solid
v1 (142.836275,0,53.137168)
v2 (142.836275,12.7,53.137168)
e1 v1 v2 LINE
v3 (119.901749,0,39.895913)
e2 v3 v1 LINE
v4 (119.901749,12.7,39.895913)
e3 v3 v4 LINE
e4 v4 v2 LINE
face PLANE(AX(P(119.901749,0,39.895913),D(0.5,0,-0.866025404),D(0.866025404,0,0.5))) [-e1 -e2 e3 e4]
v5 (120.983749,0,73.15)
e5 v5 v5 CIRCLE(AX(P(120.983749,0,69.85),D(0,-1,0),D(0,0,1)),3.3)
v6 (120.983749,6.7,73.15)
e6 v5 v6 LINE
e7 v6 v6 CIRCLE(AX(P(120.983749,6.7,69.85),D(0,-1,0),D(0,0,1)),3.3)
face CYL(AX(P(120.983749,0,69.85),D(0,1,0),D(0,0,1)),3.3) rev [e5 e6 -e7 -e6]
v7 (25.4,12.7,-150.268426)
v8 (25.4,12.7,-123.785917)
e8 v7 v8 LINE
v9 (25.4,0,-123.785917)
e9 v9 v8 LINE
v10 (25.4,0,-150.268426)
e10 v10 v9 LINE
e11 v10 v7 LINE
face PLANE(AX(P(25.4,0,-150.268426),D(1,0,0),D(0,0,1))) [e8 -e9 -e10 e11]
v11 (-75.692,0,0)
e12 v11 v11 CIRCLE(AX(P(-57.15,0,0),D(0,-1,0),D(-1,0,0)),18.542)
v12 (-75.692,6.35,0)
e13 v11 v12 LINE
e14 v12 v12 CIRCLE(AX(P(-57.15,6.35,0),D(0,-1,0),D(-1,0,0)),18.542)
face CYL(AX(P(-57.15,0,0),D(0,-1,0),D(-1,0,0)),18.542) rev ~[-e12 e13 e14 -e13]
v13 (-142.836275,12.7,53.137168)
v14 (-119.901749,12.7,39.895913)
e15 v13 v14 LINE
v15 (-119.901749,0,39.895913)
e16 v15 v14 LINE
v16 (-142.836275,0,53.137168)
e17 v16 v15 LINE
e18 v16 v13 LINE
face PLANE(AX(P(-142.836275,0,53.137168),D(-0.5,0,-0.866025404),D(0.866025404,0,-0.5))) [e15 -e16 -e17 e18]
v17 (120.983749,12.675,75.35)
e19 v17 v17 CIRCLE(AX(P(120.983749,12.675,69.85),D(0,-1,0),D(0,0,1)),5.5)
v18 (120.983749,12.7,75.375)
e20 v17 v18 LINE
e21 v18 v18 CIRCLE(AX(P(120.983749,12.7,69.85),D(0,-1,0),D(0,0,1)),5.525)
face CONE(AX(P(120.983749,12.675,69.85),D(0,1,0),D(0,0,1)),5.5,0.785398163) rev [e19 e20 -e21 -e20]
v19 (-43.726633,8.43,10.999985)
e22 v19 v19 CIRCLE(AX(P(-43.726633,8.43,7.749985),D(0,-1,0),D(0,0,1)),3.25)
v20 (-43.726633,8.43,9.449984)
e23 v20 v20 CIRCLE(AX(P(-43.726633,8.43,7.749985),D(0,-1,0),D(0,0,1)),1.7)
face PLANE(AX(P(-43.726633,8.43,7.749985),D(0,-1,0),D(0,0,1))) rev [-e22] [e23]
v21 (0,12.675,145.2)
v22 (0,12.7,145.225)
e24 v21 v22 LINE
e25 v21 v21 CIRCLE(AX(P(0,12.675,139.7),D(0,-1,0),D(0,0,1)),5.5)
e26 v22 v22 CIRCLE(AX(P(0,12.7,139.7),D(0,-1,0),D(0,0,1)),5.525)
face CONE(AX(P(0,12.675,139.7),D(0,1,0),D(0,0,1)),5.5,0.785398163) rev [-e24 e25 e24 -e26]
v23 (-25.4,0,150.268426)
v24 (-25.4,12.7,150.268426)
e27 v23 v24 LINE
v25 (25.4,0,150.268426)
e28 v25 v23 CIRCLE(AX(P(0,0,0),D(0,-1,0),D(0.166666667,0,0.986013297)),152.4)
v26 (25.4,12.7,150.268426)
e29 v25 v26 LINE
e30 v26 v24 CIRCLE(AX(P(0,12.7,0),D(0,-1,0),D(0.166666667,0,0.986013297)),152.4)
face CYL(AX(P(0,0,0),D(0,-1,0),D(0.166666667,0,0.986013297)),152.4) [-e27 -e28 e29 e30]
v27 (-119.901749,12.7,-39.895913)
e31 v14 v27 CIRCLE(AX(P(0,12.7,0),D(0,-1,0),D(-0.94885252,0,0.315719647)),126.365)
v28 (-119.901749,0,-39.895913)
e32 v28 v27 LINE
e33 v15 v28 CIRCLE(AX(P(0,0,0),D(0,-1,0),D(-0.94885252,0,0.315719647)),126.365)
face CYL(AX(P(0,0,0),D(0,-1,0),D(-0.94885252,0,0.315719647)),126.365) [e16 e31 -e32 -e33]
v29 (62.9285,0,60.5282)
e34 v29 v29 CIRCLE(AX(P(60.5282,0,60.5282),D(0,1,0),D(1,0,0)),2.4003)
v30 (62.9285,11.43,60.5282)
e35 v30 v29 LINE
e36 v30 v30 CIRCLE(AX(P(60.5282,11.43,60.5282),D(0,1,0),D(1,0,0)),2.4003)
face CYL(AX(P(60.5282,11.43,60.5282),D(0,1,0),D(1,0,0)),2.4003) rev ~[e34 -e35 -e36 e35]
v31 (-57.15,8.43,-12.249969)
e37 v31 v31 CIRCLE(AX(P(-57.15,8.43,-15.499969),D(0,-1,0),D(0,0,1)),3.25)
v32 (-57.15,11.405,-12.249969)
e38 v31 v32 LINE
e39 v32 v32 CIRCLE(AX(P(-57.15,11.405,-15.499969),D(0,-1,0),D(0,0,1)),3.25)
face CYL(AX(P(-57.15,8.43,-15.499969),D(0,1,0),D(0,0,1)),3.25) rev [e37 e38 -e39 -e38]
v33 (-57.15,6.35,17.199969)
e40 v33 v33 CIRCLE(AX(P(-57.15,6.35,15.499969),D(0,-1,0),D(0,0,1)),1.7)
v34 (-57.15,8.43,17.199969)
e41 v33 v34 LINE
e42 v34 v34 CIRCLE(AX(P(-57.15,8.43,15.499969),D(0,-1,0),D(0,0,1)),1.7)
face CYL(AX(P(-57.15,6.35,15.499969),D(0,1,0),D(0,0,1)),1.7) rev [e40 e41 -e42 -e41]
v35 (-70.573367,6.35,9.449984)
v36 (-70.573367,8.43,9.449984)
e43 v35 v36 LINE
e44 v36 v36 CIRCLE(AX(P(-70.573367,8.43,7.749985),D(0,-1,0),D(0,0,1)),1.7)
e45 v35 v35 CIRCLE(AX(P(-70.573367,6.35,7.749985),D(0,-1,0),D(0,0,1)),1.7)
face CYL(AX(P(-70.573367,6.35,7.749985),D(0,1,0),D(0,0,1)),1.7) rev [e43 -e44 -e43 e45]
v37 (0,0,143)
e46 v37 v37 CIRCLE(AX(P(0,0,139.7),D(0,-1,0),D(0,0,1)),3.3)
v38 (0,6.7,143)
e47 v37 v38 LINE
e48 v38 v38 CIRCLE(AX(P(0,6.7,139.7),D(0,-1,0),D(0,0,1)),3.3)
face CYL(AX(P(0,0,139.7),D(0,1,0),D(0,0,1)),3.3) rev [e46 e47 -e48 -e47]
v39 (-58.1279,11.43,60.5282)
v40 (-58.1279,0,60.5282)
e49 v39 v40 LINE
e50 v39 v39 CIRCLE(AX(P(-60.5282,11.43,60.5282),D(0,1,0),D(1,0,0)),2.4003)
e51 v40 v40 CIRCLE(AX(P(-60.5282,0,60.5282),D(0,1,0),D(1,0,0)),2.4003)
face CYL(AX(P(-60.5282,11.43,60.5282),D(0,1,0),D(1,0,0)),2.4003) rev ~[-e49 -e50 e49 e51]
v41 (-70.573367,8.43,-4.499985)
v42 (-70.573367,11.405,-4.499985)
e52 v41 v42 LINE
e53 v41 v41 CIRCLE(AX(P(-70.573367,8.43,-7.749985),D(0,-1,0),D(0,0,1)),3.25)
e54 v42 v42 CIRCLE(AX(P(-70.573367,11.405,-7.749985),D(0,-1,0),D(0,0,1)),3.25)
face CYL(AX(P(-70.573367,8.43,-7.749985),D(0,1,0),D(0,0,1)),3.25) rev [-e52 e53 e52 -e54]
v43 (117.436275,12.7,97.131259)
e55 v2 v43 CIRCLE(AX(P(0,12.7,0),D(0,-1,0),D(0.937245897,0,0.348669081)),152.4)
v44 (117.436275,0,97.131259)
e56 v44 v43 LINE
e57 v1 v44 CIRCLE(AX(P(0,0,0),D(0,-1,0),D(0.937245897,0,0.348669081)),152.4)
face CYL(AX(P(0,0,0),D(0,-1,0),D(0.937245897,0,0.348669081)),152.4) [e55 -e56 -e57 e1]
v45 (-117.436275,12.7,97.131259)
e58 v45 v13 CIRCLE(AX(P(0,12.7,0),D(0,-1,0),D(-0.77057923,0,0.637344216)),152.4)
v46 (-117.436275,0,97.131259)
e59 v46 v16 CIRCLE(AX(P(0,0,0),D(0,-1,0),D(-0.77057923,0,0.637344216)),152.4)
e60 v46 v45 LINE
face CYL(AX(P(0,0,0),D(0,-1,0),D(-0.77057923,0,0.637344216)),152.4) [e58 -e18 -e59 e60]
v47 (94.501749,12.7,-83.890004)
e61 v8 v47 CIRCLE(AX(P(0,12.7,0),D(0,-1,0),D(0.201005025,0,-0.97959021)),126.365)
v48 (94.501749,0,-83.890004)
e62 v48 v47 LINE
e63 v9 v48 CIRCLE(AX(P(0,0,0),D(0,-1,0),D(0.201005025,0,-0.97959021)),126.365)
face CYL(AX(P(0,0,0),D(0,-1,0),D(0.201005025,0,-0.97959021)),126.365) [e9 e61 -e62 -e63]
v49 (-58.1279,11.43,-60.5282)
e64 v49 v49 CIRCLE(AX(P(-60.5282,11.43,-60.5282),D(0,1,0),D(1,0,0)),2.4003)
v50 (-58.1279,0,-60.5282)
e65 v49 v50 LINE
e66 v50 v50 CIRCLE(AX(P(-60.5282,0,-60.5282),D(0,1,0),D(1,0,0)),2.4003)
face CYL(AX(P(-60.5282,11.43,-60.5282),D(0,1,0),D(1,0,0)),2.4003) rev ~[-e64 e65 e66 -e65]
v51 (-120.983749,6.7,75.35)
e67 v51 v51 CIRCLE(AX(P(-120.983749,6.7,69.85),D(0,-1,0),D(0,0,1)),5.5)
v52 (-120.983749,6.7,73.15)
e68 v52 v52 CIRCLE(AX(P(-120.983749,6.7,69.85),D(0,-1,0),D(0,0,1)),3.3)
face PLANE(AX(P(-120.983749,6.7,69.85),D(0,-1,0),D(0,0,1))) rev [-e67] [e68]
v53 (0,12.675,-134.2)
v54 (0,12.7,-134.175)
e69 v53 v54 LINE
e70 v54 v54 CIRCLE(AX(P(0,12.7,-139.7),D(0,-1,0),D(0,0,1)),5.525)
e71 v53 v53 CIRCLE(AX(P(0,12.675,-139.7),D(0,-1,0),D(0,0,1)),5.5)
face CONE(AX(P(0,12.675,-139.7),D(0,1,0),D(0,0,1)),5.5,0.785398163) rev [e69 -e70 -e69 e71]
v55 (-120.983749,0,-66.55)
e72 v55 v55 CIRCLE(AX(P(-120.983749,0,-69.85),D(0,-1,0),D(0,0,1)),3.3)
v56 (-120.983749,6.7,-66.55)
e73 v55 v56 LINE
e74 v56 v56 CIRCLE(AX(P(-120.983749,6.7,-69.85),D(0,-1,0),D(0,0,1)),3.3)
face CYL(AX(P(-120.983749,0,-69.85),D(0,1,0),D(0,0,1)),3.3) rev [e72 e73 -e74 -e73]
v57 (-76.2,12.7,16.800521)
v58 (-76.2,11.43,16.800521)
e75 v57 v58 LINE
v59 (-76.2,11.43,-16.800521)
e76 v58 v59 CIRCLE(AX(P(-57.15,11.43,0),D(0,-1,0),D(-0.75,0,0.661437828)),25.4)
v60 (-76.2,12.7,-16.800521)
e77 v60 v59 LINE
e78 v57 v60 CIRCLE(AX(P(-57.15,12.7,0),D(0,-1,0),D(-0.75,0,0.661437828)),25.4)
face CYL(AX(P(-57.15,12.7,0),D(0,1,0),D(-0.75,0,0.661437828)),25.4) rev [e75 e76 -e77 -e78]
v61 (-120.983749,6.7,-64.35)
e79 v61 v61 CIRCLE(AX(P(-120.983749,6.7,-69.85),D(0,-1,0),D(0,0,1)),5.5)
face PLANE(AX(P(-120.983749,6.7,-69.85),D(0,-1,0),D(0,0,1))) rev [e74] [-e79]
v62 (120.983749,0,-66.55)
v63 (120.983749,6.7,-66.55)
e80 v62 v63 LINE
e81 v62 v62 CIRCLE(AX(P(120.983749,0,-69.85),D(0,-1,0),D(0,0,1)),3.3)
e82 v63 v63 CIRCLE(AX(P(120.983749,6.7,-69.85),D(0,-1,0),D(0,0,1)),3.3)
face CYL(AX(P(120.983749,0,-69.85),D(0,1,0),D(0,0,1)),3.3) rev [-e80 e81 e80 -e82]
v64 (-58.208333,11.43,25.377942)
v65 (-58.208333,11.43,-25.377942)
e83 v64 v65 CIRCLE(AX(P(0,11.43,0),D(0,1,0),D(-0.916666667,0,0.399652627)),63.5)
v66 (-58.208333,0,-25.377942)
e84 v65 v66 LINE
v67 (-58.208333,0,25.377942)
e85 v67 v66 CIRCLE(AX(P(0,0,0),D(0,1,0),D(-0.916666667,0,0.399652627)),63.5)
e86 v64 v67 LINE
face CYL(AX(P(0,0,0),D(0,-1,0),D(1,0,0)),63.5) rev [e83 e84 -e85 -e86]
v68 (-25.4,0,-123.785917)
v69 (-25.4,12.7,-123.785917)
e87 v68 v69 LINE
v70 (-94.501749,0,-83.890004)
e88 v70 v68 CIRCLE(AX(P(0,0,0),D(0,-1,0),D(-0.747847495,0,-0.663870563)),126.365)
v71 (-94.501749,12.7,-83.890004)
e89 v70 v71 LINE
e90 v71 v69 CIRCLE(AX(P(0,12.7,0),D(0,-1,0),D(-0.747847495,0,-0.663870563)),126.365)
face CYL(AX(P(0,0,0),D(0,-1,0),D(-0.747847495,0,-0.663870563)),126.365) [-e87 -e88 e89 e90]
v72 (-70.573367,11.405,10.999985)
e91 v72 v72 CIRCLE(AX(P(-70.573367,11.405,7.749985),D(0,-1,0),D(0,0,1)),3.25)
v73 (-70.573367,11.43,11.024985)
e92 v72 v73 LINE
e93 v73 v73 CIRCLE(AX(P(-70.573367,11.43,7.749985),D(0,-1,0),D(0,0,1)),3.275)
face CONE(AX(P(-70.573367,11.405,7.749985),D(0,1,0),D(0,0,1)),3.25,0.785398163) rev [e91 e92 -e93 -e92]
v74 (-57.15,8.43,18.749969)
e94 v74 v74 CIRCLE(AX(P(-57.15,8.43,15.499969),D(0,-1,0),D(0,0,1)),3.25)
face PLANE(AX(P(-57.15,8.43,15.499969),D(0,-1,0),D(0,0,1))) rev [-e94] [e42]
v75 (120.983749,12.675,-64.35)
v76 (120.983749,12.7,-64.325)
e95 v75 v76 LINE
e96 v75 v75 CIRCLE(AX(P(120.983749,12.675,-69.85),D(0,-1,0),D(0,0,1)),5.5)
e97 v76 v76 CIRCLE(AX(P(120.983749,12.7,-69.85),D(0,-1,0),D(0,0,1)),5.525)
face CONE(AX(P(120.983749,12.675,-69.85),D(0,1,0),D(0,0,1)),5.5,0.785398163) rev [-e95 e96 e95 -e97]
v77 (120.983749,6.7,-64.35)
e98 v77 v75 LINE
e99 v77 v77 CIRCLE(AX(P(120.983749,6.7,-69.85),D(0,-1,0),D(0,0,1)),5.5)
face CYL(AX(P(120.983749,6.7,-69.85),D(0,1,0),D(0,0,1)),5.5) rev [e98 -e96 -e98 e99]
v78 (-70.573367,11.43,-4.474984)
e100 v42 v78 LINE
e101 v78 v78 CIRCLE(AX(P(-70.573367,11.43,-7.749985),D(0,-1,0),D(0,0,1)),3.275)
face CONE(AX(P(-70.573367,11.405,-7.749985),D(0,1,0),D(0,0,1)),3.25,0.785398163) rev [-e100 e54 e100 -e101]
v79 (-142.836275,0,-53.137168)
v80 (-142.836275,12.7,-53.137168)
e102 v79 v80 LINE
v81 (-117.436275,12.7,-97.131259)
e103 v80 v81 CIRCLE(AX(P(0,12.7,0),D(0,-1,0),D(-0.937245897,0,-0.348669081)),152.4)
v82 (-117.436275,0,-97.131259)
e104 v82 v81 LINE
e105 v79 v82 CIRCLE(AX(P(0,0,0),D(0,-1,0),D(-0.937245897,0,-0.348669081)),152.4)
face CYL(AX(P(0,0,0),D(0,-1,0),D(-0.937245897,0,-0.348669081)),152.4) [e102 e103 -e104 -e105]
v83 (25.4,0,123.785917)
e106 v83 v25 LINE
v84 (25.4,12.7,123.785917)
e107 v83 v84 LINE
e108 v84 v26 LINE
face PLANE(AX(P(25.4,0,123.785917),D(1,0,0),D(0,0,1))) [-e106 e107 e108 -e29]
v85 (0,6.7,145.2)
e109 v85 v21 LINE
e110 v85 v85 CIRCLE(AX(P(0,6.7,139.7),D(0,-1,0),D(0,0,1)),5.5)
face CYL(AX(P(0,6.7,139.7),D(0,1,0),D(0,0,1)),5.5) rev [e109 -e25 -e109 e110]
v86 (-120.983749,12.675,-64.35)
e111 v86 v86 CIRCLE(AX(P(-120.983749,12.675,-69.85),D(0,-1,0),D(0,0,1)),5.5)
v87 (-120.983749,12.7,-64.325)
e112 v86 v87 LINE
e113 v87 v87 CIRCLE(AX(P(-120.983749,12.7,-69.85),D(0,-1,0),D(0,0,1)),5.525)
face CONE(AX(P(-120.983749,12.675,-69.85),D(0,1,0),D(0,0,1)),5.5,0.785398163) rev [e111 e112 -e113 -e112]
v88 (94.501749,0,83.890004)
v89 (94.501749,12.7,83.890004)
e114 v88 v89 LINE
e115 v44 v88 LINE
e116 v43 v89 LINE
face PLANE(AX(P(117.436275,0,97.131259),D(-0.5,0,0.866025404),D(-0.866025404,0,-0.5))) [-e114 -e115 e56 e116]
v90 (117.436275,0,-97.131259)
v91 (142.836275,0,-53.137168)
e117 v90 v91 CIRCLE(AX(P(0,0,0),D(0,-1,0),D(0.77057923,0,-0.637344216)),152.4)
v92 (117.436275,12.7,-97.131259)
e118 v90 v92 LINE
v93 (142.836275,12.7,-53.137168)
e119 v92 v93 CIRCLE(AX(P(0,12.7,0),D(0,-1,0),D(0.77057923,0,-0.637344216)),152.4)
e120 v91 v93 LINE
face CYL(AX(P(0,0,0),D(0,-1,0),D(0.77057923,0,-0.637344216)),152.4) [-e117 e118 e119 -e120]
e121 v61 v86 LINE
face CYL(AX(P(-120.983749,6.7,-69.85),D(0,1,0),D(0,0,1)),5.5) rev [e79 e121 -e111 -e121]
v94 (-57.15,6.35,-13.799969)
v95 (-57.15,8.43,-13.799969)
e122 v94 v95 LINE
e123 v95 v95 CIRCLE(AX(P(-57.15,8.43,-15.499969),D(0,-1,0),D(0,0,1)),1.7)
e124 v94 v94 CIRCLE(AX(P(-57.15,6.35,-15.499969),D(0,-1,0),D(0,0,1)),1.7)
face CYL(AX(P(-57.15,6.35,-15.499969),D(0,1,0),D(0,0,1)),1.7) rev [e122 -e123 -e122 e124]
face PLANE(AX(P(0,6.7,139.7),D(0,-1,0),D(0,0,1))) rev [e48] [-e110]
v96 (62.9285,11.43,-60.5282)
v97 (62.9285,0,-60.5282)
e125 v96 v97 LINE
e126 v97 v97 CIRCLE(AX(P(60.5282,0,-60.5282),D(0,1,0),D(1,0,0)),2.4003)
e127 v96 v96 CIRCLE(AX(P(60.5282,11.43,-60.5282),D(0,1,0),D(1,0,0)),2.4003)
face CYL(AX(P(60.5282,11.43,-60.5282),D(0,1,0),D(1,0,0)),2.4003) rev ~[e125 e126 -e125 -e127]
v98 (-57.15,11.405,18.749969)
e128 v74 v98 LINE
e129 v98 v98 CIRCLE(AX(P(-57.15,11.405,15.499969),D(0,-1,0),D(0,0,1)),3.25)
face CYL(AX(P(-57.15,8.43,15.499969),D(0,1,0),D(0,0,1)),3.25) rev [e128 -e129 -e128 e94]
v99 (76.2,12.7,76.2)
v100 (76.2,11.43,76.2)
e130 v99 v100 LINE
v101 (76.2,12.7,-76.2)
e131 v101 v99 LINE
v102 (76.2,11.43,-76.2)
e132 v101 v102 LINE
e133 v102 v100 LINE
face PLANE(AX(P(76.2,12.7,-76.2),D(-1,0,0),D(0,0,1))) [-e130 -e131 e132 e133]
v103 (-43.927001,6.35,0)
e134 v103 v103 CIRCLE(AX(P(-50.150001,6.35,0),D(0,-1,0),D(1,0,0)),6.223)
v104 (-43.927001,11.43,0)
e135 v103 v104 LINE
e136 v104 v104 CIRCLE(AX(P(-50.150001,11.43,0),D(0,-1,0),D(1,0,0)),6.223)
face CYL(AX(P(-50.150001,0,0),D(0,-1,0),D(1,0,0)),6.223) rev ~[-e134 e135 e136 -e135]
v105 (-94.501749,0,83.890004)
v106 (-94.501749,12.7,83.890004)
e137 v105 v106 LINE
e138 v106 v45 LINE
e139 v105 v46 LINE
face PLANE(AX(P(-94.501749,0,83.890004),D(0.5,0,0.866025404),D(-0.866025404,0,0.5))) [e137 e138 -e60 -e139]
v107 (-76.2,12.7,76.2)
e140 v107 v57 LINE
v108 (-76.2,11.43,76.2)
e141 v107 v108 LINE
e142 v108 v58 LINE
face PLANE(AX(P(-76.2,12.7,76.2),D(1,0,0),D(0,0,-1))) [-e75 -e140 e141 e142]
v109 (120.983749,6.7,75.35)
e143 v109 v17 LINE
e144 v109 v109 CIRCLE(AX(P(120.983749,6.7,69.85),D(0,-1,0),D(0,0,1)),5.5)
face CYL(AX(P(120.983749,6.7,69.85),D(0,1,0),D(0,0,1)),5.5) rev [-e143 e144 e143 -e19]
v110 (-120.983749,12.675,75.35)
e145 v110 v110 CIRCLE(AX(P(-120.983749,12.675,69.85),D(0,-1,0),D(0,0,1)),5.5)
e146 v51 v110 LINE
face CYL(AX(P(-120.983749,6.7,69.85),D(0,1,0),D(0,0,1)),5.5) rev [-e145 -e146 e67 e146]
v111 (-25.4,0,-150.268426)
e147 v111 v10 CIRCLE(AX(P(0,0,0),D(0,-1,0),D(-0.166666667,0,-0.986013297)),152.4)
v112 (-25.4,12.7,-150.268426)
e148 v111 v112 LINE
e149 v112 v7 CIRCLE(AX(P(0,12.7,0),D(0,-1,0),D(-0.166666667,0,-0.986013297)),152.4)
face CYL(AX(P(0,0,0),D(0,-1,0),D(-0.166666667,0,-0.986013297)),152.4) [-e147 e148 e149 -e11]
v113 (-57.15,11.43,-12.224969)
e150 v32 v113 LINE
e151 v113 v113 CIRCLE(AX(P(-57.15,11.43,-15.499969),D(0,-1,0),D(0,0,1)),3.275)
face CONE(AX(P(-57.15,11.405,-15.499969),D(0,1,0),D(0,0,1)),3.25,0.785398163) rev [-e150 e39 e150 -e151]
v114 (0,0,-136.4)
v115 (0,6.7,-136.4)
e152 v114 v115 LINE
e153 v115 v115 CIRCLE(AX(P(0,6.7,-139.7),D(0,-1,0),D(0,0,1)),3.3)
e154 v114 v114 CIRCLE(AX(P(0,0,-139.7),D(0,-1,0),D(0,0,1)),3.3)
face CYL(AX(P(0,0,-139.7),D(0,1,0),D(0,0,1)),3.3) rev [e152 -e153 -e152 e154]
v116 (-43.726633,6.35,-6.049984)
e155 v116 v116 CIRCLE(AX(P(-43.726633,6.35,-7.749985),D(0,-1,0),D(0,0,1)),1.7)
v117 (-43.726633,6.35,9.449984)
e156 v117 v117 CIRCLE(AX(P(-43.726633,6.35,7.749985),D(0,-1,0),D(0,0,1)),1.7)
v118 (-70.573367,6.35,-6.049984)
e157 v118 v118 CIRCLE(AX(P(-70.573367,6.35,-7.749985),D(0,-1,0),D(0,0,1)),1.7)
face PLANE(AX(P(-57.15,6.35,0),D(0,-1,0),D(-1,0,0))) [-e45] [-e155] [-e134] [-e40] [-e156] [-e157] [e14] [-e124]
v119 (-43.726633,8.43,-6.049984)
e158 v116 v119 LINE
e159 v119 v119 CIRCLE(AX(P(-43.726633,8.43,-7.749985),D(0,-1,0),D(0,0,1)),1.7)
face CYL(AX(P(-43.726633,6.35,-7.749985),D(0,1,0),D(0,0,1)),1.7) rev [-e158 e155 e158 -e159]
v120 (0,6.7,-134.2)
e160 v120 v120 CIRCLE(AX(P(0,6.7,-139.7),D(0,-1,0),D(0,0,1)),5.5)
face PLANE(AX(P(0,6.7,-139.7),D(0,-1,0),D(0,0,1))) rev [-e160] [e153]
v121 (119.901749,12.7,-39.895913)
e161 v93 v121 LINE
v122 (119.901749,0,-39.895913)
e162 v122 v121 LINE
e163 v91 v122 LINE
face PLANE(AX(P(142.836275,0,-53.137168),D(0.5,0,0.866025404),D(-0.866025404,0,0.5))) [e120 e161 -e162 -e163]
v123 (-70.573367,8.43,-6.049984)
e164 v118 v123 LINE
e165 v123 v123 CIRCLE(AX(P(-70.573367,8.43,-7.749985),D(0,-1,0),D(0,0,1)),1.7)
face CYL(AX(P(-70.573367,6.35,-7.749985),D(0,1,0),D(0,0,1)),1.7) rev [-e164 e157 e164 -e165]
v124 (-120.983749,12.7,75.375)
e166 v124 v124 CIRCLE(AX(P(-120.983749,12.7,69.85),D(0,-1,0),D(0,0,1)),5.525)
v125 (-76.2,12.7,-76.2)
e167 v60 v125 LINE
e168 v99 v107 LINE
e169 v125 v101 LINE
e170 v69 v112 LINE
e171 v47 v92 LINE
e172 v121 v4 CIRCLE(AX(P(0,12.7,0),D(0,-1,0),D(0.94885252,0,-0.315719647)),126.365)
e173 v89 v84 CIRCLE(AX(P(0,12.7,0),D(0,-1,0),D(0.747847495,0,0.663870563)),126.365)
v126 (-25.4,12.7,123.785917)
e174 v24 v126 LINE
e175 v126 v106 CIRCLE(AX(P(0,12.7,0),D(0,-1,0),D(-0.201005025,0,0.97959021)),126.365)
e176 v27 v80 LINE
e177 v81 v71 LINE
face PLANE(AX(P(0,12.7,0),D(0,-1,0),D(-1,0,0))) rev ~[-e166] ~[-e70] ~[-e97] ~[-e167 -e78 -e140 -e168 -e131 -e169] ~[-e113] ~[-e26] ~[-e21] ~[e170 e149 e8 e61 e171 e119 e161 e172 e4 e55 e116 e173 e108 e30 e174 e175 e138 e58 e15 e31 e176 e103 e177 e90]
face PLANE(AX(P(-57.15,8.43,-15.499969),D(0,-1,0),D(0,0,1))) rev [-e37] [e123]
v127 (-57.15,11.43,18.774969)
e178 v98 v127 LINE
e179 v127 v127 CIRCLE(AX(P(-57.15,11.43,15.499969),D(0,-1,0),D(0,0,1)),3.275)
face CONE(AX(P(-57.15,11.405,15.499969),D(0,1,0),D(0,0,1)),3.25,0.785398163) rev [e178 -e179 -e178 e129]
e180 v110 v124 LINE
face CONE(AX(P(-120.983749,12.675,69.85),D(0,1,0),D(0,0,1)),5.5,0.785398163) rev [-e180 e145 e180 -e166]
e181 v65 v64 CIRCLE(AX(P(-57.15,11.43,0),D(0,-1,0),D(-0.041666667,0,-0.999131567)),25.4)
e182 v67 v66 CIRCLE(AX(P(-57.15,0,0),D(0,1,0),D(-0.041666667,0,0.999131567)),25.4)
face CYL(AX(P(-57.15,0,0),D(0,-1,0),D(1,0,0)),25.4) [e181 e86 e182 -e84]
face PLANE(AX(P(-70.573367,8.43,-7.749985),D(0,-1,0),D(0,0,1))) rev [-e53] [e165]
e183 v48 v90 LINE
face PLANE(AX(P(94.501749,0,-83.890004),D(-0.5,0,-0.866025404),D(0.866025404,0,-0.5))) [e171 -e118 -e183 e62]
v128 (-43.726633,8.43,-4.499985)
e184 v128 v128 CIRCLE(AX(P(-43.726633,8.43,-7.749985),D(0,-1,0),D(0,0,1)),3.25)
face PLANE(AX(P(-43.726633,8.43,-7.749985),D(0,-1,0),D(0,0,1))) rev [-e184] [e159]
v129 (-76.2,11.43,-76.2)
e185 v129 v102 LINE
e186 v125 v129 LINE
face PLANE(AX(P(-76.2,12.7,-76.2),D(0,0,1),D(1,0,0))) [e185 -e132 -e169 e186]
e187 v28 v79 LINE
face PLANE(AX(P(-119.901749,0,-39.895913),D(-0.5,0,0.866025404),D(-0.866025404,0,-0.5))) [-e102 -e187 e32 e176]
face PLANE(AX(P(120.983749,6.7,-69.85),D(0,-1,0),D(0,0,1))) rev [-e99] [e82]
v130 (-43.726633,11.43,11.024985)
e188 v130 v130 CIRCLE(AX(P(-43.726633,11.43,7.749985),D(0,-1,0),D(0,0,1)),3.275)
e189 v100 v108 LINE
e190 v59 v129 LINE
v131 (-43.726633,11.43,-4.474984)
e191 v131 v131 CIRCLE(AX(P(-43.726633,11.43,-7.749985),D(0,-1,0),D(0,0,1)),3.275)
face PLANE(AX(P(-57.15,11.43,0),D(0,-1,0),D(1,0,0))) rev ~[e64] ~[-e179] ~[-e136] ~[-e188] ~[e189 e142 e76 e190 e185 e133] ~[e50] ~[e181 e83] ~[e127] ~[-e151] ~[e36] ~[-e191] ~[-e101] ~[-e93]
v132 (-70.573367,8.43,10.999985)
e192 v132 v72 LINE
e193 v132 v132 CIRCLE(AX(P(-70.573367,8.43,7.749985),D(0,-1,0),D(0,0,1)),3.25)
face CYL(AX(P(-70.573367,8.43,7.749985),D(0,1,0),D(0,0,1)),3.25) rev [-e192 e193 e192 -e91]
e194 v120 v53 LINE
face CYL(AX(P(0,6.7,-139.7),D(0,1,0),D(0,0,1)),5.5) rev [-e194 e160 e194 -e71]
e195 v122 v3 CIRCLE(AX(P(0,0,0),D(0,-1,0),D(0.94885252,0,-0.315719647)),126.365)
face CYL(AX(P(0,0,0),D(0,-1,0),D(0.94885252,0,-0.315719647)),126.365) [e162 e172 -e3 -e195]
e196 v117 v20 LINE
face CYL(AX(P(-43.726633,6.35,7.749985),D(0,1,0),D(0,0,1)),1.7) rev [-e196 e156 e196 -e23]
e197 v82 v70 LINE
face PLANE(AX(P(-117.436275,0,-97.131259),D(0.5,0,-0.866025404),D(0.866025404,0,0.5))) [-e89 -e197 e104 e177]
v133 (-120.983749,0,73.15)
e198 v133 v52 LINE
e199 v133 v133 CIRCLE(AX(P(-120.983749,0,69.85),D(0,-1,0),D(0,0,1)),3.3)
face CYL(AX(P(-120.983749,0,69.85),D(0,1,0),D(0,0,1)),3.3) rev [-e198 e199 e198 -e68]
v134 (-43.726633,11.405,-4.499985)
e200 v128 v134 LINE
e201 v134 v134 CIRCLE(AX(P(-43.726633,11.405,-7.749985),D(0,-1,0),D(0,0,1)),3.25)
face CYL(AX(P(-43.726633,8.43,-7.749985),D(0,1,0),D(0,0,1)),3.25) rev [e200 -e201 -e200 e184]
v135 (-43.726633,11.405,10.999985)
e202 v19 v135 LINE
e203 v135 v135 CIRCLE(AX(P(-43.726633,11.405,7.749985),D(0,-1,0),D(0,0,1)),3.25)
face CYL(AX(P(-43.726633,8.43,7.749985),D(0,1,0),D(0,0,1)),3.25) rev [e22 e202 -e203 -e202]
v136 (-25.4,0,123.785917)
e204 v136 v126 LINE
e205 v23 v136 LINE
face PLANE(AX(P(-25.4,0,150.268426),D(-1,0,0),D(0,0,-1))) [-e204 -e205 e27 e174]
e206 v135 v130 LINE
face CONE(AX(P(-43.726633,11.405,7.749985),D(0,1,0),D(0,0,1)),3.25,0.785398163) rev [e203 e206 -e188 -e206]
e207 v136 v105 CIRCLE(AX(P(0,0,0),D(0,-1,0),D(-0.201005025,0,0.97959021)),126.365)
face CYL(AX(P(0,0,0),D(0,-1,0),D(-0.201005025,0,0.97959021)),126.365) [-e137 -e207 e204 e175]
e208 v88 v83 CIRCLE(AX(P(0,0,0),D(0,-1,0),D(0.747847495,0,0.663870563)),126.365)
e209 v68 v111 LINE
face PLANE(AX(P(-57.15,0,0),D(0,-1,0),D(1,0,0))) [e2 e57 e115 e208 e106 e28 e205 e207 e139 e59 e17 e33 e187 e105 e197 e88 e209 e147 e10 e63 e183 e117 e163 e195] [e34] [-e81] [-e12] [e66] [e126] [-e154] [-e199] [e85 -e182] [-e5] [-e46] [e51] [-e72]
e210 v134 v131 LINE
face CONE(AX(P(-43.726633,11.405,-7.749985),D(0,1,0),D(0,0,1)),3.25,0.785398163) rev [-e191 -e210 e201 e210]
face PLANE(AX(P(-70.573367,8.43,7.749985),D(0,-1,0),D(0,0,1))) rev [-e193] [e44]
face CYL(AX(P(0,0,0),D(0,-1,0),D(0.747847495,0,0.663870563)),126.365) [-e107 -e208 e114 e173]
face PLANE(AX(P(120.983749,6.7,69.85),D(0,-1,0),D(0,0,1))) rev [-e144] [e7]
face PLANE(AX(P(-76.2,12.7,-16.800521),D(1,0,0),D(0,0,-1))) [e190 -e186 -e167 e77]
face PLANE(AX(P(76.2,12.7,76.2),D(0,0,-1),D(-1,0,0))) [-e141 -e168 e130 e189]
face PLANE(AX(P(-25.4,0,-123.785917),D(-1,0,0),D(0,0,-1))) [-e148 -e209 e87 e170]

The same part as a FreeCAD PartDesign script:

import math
import FreeCAD as App
import Part
import Sketcher

V = App.Vector
Q = App.Units.Quantity


def add_polygon(sketch, points):
    """Adds a closed chain of lines whose ends are joined by coincident constraints."""
    first, n = sketch.GeometryCount, len(points)
    for a, b in zip(points, points[1:] + points[:1]):
        sketch.addGeometry(Part.LineSegment(App.Vector(*a, 0), App.Vector(*b, 0)), False)
    for i in range(n):
        sketch.addConstraint(Sketcher.Constraint("Coincident", first + i, 2, first + (i + 1) % n, 1))

doc = App.newDocument("Part")
body = doc.addObject("PartDesign::Body", "Body")

# Sketch on XZ plane
sketch1 = body.newObject("Sketcher::SketchObject", "Sketch")
sketch1.AttachmentSupport = (doc.getObject("XZ_Plane"), [""])
sketch1.MapMode = "FlatFace"
sketch1.addGeometry([
    Part.LineSegment(V(-25.4, -150.268426, 0), V(-25.4, -123.785917, 0)),  # 0
    Part.ArcOfCircle(Part.Circle(V(0, 0, 0), V(0, 0, 1), 126.365), math.radians(-138.404264), math.radians(-101.595736)),  # 1
    Part.LineSegment(V(-94.501749, -83.890004, 0), V(-117.436275, -97.131259, 0)),  # 2
    Part.ArcOfCircle(Part.Circle(V(0, 0, 0), V(0, 0, 1), 152.4), math.radians(-159.594068), math.radians(-140.405932)),  # 3
    Part.LineSegment(V(-142.836275, -53.137168, 0), V(-119.901749, -39.895913, 0)),  # 4
    Part.ArcOfCircle(Part.Circle(V(0, 0, 0), V(0, 0, 1), 126.365), math.radians(161.595736), math.radians(198.404264)),  # 5
    Part.LineSegment(V(-119.901749, 39.895913, 0), V(-142.836275, 53.137168, 0)),  # 6
    Part.ArcOfCircle(Part.Circle(V(0, 0, 0), V(0, 0, 1), 152.4), math.radians(140.405932), math.radians(159.594068)),  # 7
    Part.LineSegment(V(-117.436275, 97.131259, 0), V(-94.501749, 83.890004, 0)),  # 8
    Part.ArcOfCircle(Part.Circle(V(0, 0, 0), V(0, 0, 1), 126.365), math.radians(101.595736), math.radians(138.404264)),  # 9
    Part.LineSegment(V(-25.4, 123.785917, 0), V(-25.4, 150.268426, 0)),  # 10
    Part.ArcOfCircle(Part.Circle(V(0, 0, 0), V(0, 0, 1), 152.4), math.radians(80.405932), math.radians(99.594068)),  # 11
    Part.LineSegment(V(25.4, 150.268426, 0), V(25.4, 123.785917, 0)),  # 12
    Part.ArcOfCircle(Part.Circle(V(0, 0, 0), V(0, 0, 1), 126.365), math.radians(41.595736), math.radians(78.404264)),  # 13
    Part.LineSegment(V(94.501749, 83.890004, 0), V(117.436275, 97.131259, 0)),  # 14
    Part.ArcOfCircle(Part.Circle(V(0, 0, 0), V(0, 0, 1), 152.4), math.radians(20.405932), math.radians(39.594068)),  # 15
    Part.LineSegment(V(142.836275, 53.137168, 0), V(119.901749, 39.895913, 0)),  # 16
    Part.ArcOfCircle(Part.Circle(V(0, 0, 0), V(0, 0, 1), 126.365), math.radians(-18.404264), math.radians(18.404264)),  # 17
    Part.LineSegment(V(119.901749, -39.895913, 0), V(142.836275, -53.137168, 0)),  # 18
    Part.ArcOfCircle(Part.Circle(V(0, 0, 0), V(0, 0, 1), 152.4), math.radians(-39.594068), math.radians(-20.405932)),  # 19
    Part.LineSegment(V(117.436275, -97.131259, 0), V(94.501749, -83.890004, 0)),  # 20
    Part.ArcOfCircle(Part.Circle(V(0, 0, 0), V(0, 0, 1), 126.365), math.radians(-78.404264), math.radians(-41.595736)),  # 21
    Part.LineSegment(V(25.4, -123.785917, 0), V(25.4, -150.268426, 0)),  # 22
    Part.ArcOfCircle(Part.Circle(V(0, 0, 0), V(0, 0, 1), 152.4), math.radians(-99.594068), math.radians(-80.405932)),  # 23
], False)
sketch1.addConstraint([
    Sketcher.Constraint("Coincident", 0, 2, 1, 2),
    Sketcher.Constraint("Coincident", 1, 1, 2, 1),
    Sketcher.Constraint("Coincident", 2, 2, 3, 2),
    Sketcher.Constraint("Coincident", 3, 1, 4, 1),
    Sketcher.Constraint("Coincident", 4, 2, 5, 2),
    Sketcher.Constraint("Coincident", 5, 1, 6, 1),
    Sketcher.Constraint("Coincident", 6, 2, 7, 2),
    Sketcher.Constraint("Coincident", 7, 1, 8, 1),
    Sketcher.Constraint("Coincident", 8, 2, 9, 2),
    Sketcher.Constraint("Coincident", 9, 1, 10, 1),
    Sketcher.Constraint("Coincident", 10, 2, 11, 2),
    Sketcher.Constraint("Coincident", 11, 1, 12, 1),
    Sketcher.Constraint("Coincident", 12, 2, 13, 2),
    Sketcher.Constraint("Coincident", 13, 1, 14, 1),
    Sketcher.Constraint("Coincident", 14, 2, 15, 2),
    Sketcher.Constraint("Coincident", 15, 1, 16, 1),
    Sketcher.Constraint("Coincident", 16, 2, 17, 2),
    Sketcher.Constraint("Coincident", 17, 1, 18, 1),
    Sketcher.Constraint("Coincident", 18, 2, 19, 2),
    Sketcher.Constraint("Coincident", 19, 1, 20, 1),
    Sketcher.Constraint("Coincident", 20, 2, 21, 2),
    Sketcher.Constraint("Coincident", 21, 1, 22, 1),
    Sketcher.Constraint("Coincident", 22, 2, 23, 2),
    Sketcher.Constraint("Coincident", 23, 1, 0, 1),
    Sketcher.Constraint("Vertical", 0),
    Sketcher.Constraint("Vertical", 10),
    Sketcher.Constraint("Vertical", 12),
    Sketcher.Constraint("Vertical", 22),
    Sketcher.Constraint("Coincident", 1, 3, -1, 1),
    Sketcher.Constraint("Coincident", 3, 3, -1, 1),
    Sketcher.Constraint("Coincident", 5, 3, -1, 1),
    Sketcher.Constraint("Coincident", 7, 3, -1, 1),
    Sketcher.Constraint("Coincident", 9, 3, -1, 1),
    Sketcher.Constraint("Coincident", 11, 3, -1, 1),
    Sketcher.Constraint("Coincident", 13, 3, -1, 1),
    Sketcher.Constraint("Coincident", 15, 3, -1, 1),
    Sketcher.Constraint("Coincident", 17, 3, -1, 1),
    Sketcher.Constraint("Coincident", 19, 3, -1, 1),
    Sketcher.Constraint("Coincident", 21, 3, -1, 1),
    Sketcher.Constraint("Coincident", 23, 3, -1, 1),
    Sketcher.Constraint("Equal", 1, 5),
    Sketcher.Constraint("Equal", 3, 7),
    Sketcher.Constraint("Equal", 5, 9),
    Sketcher.Constraint("Equal", 7, 11),
    Sketcher.Constraint("Equal", 9, 13),
    Sketcher.Constraint("Equal", 11, 15),
    Sketcher.Constraint("Equal", 13, 17),
    Sketcher.Constraint("Equal", 15, 19),
    Sketcher.Constraint("Equal", 17, 21),
    Sketcher.Constraint("Equal", 19, 23),
    Sketcher.Constraint("Parallel", 2, 4),
    Sketcher.Constraint("Parallel", 6, 8),
    Sketcher.Constraint("Parallel", 4, 14),
    Sketcher.Constraint("Parallel", 14, 16),
    Sketcher.Constraint("Parallel", 8, 18),
    Sketcher.Constraint("Parallel", 18, 20),
    Sketcher.Constraint("Horizontal", 10, 2, 11, 1),
    Sketcher.Constraint("Horizontal", 8, 2, 13, 1),
    Sketcher.Constraint("Horizontal", 7, 1, 14, 2),
    Sketcher.Constraint("Horizontal", 6, 2, 15, 1),
    Sketcher.Constraint("Horizontal", 4, 2, 17, 1),
    Sketcher.Constraint("Horizontal", 2, 2, 19, 1),
    Sketcher.Constraint("Horizontal", 0, 2, 21, 1),
    Sketcher.Constraint("Vertical", 4, 2, 5, 1),
    Sketcher.Constraint("Vertical", 2, 2, 7, 1),
    Sketcher.Constraint("Vertical", 0, 2, 9, 1),
    Sketcher.Constraint("Equal", 2, 4),
    Sketcher.Constraint("Radius", 3, Q("6 in")),
    Sketcher.Constraint("DistanceX", 0, 2, -1, 1, Q("1 in")),
    Sketcher.Constraint("Angle", 2, Q("-150 deg")),
    Sketcher.Constraint("Radius", 1, Q("4.975 in")),
    Sketcher.Constraint("DistanceX", 3, 1, 2, 2, Q("1 in")),
])
pad1 = body.newObject("PartDesign::Pad", "Pad")
pad1.Profile = sketch1
pad1.Length = Q("0.5 in")
pad1.Reversed = True

# Sketch on XZ plane
sketch2 = body.newObject("Sketcher::SketchObject", "Sketch001")
sketch2.AttachmentSupport = (doc.getObject("XZ_Plane"), [""])
sketch2.MapMode = "FlatFace"
sketch2.addGeometry(Part.Circle(V(0, 0, 0), V(0, 0, 1), 63.5), False)
sketch2.addConstraint([
    Sketcher.Constraint("Coincident", 0, 3, -1, 1),
    Sketcher.Constraint("Diameter", 0, Q("5 in")),
])
pocket1 = body.newObject("PartDesign::Pocket", "Pocket")
pocket1.Profile = sketch2
pocket1.Length = Q("0.5 in")

# Sketch on XZ plane
sketch3 = body.newObject("Sketcher::SketchObject", "Sketch002")
sketch3.AttachmentSupport = (doc.getObject("XZ_Plane"), [""])
sketch3.MapMode = "FlatFace"
sketch3.AttachmentOffset = App.Placement(V(0, 0, -0.5 * 25.4), App.Rotation())
sketch3.addGeometry([
    Part.LineSegment(V(-76.2, -76.2, 0), V(-76.2, -16.800521, 0)),  # 0
    Part.ArcOfCircle(Part.Circle(V(-57.15, 0, 0), V(0, 0, 1), 25.4), math.radians(138.590378), math.radians(221.409622)),  # 1
    Part.LineSegment(V(-76.2, 16.800521, 0), V(-76.2, 76.2, 0)),  # 2
    Part.LineSegment(V(-76.2, 76.2, 0), V(76.2, 76.2, 0)),  # 3
    Part.LineSegment(V(76.2, 76.2, 0), V(76.2, -76.2, 0)),  # 4
    Part.LineSegment(V(76.2, -76.2, 0), V(-76.2, -76.2, 0)),  # 5
], False)
sketch3.addConstraint([
    Sketcher.Constraint("Coincident", 0, 2, 1, 2),
    Sketcher.Constraint("Coincident", 1, 1, 2, 1),
    Sketcher.Constraint("Coincident", 2, 2, 3, 1),
    Sketcher.Constraint("Coincident", 3, 2, 4, 1),
    Sketcher.Constraint("Coincident", 4, 2, 5, 1),
    Sketcher.Constraint("Coincident", 5, 2, 0, 1),
    Sketcher.Constraint("Vertical", 0),
    Sketcher.Constraint("Vertical", 2),
    Sketcher.Constraint("Horizontal", 3),
    Sketcher.Constraint("Vertical", 4),
    Sketcher.Constraint("Horizontal", 5),
    Sketcher.Constraint("Symmetric", 2, 2, 4, 2, -1, 1),
    Sketcher.Constraint("Symmetric", 0, 2, 1, 1, -1),
    Sketcher.Constraint("Equal", 5, 4),
    Sketcher.Constraint("Radius", 1, Q("1 in")),
    Sketcher.Constraint("DistanceX", 3, 1, 3, 2, Q("6 in")),
    Sketcher.Constraint("DistanceX", 1, 3, -1, 1, Q("2.25 in")),
])
pocket2 = body.newObject("PartDesign::Pocket", "Pocket001")
pocket2.Profile = sketch3
pocket2.Length = Q("0.05 in")
pocket2.Reversed = True

# Sketch on XZ plane
sketch4 = body.newObject("Sketcher::SketchObject", "Sketch003")
sketch4.AttachmentSupport = (doc.getObject("XZ_Plane"), [""])
sketch4.MapMode = "FlatFace"
sketch4.AttachmentOffset = App.Placement(V(0, 0, -0.45 * 25.4), App.Rotation())
sketch4.addGeometry([
    Part.Circle(V(-60.5282, -60.5282, 0), V(0, 0, 1), 2.4003),
    Part.Circle(V(-60.5282, 60.5282, 0), V(0, 0, 1), 2.4003),
    Part.Circle(V(60.5282, 60.5282, 0), V(0, 0, 1), 2.4003),
    Part.Circle(V(60.5282, -60.5282, 0), V(0, 0, 1), 2.4003),
], False)
sketch4.addConstraint([
    Sketcher.Constraint("Equal", 0, 1),
    Sketcher.Constraint("Equal", 1, 2),
    Sketcher.Constraint("Equal", 2, 3),
    Sketcher.Constraint("Symmetric", 0, 3, 2, 3, -1, 1),
    Sketcher.Constraint("Symmetric", 1, 3, 3, 3, -1, 1),
    Sketcher.Constraint("Symmetric", 1, 3, 2, 3, -2),
    Sketcher.Constraint("Diameter", 0, Q("0.189 in")),
    Sketcher.Constraint("DistanceX", 0, 3, -1, 1, Q("2.383 in")),
    Sketcher.Constraint("DistanceY", 0, 3, -1, 1, Q("2.383 in")),
])
pocket3 = body.newObject("PartDesign::Pocket", "Pocket002")
pocket3.Profile = sketch4
pocket3.Type = "ThroughAll"
pocket3.Midplane = True

# Sketch on YZ plane
sketch5 = body.newObject("Sketcher::SketchObject", "Sketch004")
sketch5.AttachmentSupport = (doc.getObject("YZ_Plane"), [""])
sketch5.MapMode = "FlatFace"
add_polygon(sketch5, [(0, 0), (12.7, 0), (12.7, 5.525), (12.675, 5.5), (6.7, 5.5), (6.7, 3.3), (0, 3.3)])  # lines 0-6
sketch5.addConstraint([
    Sketcher.Constraint("Horizontal", 0),
    Sketcher.Constraint("Vertical", 1),
    Sketcher.Constraint("Horizontal", 3),
    Sketcher.Constraint("Vertical", 4),
    Sketcher.Constraint("Horizontal", 5),
    Sketcher.Constraint("Vertical", 6),
    Sketcher.Constraint("Coincident", 6, 2, -1, 1),
    Sketcher.Constraint("DistanceX", 0, 1, 0, 2, Q("0.5 in")),
    Sketcher.Constraint("Angle", 2, Q("-135 deg")),
    Sketcher.Constraint("DistanceX", 3, 2, 3, 1, Q("5.975 mm")),
    Sketcher.Constraint("DistanceX", 5, 2, 5, 1, Q("6.7 mm")),
    Sketcher.Constraint("DistanceY", 1, 1, 1, 2, Q("5.525 mm")),
    Sketcher.Constraint("DistanceY", 4, 2, 4, 1, Q("2.2 mm")),
])
groove = body.newObject("PartDesign::Groove", "Groove")
groove.Profile = sketch5
groove.ReferenceAxis = (sketch5, ["H_Axis"])
groove.Angle = 360
doc.recompute()

linearpattern = body.newObject("PartDesign::LinearPattern", "LinearPattern")
linearpattern.Originals = [groove]
linearpattern.Direction = (doc.getObject("Z_Axis"), [""])
linearpattern.Mode = "offset"
linearpattern.Offset = Q("5.5 in")
linearpattern.Occurrences = 2
linearpattern.Reversed = True
body.Tip = linearpattern
doc.recompute()

datumline = body.newObject("PartDesign::Line", "DatumLine")
datumline.Placement = App.Placement(V(0, 0, 0), App.Rotation(V(0, 0, 1), V(0.866025404, 0, -0.5)))
linearpattern2 = body.newObject("PartDesign::LinearPattern", "LinearPattern001")
linearpattern2.Originals = [groove]
linearpattern2.Direction = (datumline, [""])
linearpattern2.Mode = "offset"
linearpattern2.Offset = Q("5.5 in")
linearpattern2.Occurrences = 2
body.Tip = linearpattern2
doc.recompute()

datumline2 = body.newObject("PartDesign::Line", "DatumLine001")
datumline2.Placement = App.Placement(V(0, 0, 0), App.Rotation(V(0, 0, 1), V(0.866025404, 0, 0.5)))
linearpattern3 = body.newObject("PartDesign::LinearPattern", "LinearPattern002")
linearpattern3.Originals = [groove]
linearpattern3.Direction = (datumline2, [""])
linearpattern3.Mode = "offset"
linearpattern3.Offset = Q("5.5 in")
linearpattern3.Occurrences = 2
body.Tip = linearpattern3
doc.recompute()

linearpattern4 = body.newObject("PartDesign::LinearPattern", "LinearPattern003")
linearpattern4.Originals = [groove]
linearpattern4.Direction = (doc.getObject("Z_Axis"), [""])
linearpattern4.Mode = "offset"
linearpattern4.Offset = Q("5.5 in")
linearpattern4.Occurrences = 2
body.Tip = linearpattern4
doc.recompute()

datumline3 = body.newObject("PartDesign::Line", "DatumLine002")
datumline3.Placement = App.Placement(V(0, 0, 0), App.Rotation(V(0, 0, 1), V(-0.866025404, 0, 0.5)))
linearpattern5 = body.newObject("PartDesign::LinearPattern", "LinearPattern004")
linearpattern5.Originals = [groove]
linearpattern5.Direction = (datumline3, [""])
linearpattern5.Mode = "offset"
linearpattern5.Offset = Q("5.5 in")
linearpattern5.Occurrences = 2
body.Tip = linearpattern5
doc.recompute()

datumline4 = body.newObject("PartDesign::Line", "DatumLine003")
datumline4.Placement = App.Placement(V(0, 0, 0), App.Rotation(V(0, 0, 1), V(-0.866025404, 0, -0.5)))
linearpattern6 = body.newObject("PartDesign::LinearPattern", "LinearPattern005")
linearpattern6.Originals = [groove]
linearpattern6.Direction = (datumline4, [""])
linearpattern6.Mode = "offset"
linearpattern6.Offset = Q("5.5 in")
linearpattern6.Occurrences = 2
body.Tip = linearpattern6

# Sketch on XZ plane
sketch6 = body.newObject("Sketcher::SketchObject", "Sketch005")
sketch6.AttachmentSupport = (doc.getObject("XZ_Plane"), [""])
sketch6.MapMode = "FlatFace"
sketch6.addGeometry(Part.Circle(V(-57.15, 0, 0), V(0, 0, 1), 25.4), False)
sketch6.addConstraint([
    Sketcher.Constraint("PointOnObject", 0, 3, -1),
    Sketcher.Constraint("Diameter", 0, Q("2 in")),
    Sketcher.Constraint("DistanceX", 0, 3, -1, 1, Q("2.25 in")),
])
pad2 = body.newObject("PartDesign::Pad", "Pad001")
pad2.Profile = sketch6
pad2.Length = Q("0.45 in")
pad2.Reversed = True

# Sketch on XZ plane
sketch7 = body.newObject("Sketcher::SketchObject", "Sketch006")
sketch7.AttachmentSupport = (doc.getObject("XZ_Plane"), [""])
sketch7.MapMode = "FlatFace"
sketch7.addGeometry(Part.Circle(V(-57.15, 0, 0), V(0, 0, 1), 18.542), False)
sketch7.addConstraint([
    Sketcher.Constraint("PointOnObject", 0, 3, -1),
    Sketcher.Constraint("Diameter", 0, Q("1.46 in")),
    Sketcher.Constraint("DistanceX", 0, 3, -1, 1, Q("2.25 in")),
])
pocket4 = body.newObject("PartDesign::Pocket", "Pocket003")
pocket4.Profile = sketch7
pocket4.Length = Q("0.25 in")

# Sketch on YZ plane
sketch8 = body.newObject("Sketcher::SketchObject", "Sketch007")
sketch8.AttachmentSupport = (doc.getObject("YZ_Plane"), [""])
sketch8.MapMode = "FlatFace"
sketch8.AttachmentOffset = App.Placement(V(0, 0, -70.573367), App.Rotation())
add_polygon(sketch8, [(5.328537, 7.749985), (11.43, 7.749985), (11.43, 11.024985), (11.405, 10.999985), (8.43, 10.999985), (8.43, 9.449984), (6.35, 9.449984)])  # lines 0-6
sketch8.addGeometry(Part.LineSegment(V(11.43, 7.749985, 0), V(5.328537, 7.749985, 0)), True)  # axis
sketch8.addConstraint([
    Sketcher.Constraint("Horizontal", 0),
    Sketcher.Constraint("Vertical", 1),
    Sketcher.Constraint("Horizontal", 3),
    Sketcher.Constraint("Vertical", 4),
    Sketcher.Constraint("Horizontal", 5),
    Sketcher.Constraint("Horizontal", 7),
    Sketcher.Constraint("Coincident", 7, 1, 0, 2),
    Sketcher.Constraint("Equal", 0, 7),
    Sketcher.Constraint("Angle", 2, Q("-135 deg")),
    Sketcher.Constraint("Angle", 6, Q("-121 deg")),
    Sketcher.Constraint("DistanceX", 5, 2, 1, 2, Q("0.2 in")),
    Sketcher.Constraint("DistanceX", -1, 1, 0, 2, Q("0.45 in")),
    Sketcher.Constraint("DistanceX", 3, 2, 3, 1, Q("2.975 mm")),
    Sketcher.Constraint("DistanceX", 5, 2, 5, 1, Q("2.08 mm")),
    Sketcher.Constraint("DistanceY", 1, 1, 1, 2, Q("3.275 mm")),
    Sketcher.Constraint("DistanceY", 4, 2, 4, 1, Q("1.55 mm")),
    Sketcher.Constraint("DistanceY", -1, 1, 0, 2, Q("7.749985 mm")),
])
groove2 = body.newObject("PartDesign::Groove", "Groove001")
groove2.Profile = sketch8
groove2.ReferenceAxis = (sketch8, ["Axis0"])
groove2.Angle = 360
doc.recompute()

datumline5 = body.newObject("PartDesign::Line", "DatumLine004")
datumline5.Placement = App.Placement(V(0, 0, 0), App.Rotation(V(0, 0, 1), V(0.866025404, 0, 0.5)))
linearpattern7 = body.newObject("PartDesign::LinearPattern", "LinearPattern006")
linearpattern7.Originals = [groove2]
linearpattern7.Direction = (datumline5, [""])
linearpattern7.Mode = "offset"
linearpattern7.Offset = 15.499969
linearpattern7.Occurrences = 2
body.Tip = linearpattern7
doc.recompute()

linearpattern8 = body.newObject("PartDesign::LinearPattern", "LinearPattern007")
linearpattern8.Originals = [groove2]
linearpattern8.Direction = (doc.getObject("X_Axis"), [""])
linearpattern8.Mode = "offset"
linearpattern8.Offset = 26.846734
linearpattern8.Occurrences = 2
body.Tip = linearpattern8
doc.recompute()

datumline6 = body.newObject("PartDesign::Line", "DatumLine005")
datumline6.Placement = App.Placement(V(0, 0, 0), App.Rotation(V(0, 0, 1), V(0.866025404, 0, -0.5)))
linearpattern9 = body.newObject("PartDesign::LinearPattern", "LinearPattern008")
linearpattern9.Originals = [groove2]
linearpattern9.Direction = (datumline6, [""])
linearpattern9.Mode = "offset"
linearpattern9.Offset = 30.999938
linearpattern9.Occurrences = 2
body.Tip = linearpattern9
doc.recompute()

datumline7 = body.newObject("PartDesign::Line", "DatumLine006")
datumline7.Placement = App.Placement(V(0, 0, 0), App.Rotation(V(0, 0, 1), V(0.5, 0, -0.866025404)))
linearpattern10 = body.newObject("PartDesign::LinearPattern", "LinearPattern009")
linearpattern10.Originals = [groove2]
linearpattern10.Direction = (datumline7, [""])
linearpattern10.Mode = "offset"
linearpattern10.Offset = 26.846734
linearpattern10.Occurrences = 2
body.Tip = linearpattern10
doc.recompute()

linearpattern11 = body.newObject("PartDesign::LinearPattern", "LinearPattern010")
linearpattern11.Originals = [groove2]
linearpattern11.Direction = (doc.getObject("Z_Axis"), [""])
linearpattern11.Mode = "offset"
linearpattern11.Offset = 15.499969
linearpattern11.Occurrences = 2
linearpattern11.Reversed = True
body.Tip = linearpattern11

# Sketch on XZ plane
sketch9 = body.newObject("Sketcher::SketchObject", "Sketch008")
sketch9.AttachmentSupport = (doc.getObject("XZ_Plane"), [""])
sketch9.MapMode = "FlatFace"
sketch9.addGeometry(Part.Circle(V(-50.150001, 0, 0), V(0, 0, 1), 6.223), False)
sketch9.addConstraint([
    Sketcher.Constraint("PointOnObject", 0, 3, -1),
    Sketcher.Constraint("Diameter", 0, Q("0.49 in")),
    Sketcher.Constraint("DistanceX", 0, 3, -1, 1, Q("50.150001 mm")),
])
pocket5 = body.newObject("PartDesign::Pocket", "Pocket004")
pocket5.Profile = sketch9
pocket5.Length = Q("0.45 in")

doc.recompute()
